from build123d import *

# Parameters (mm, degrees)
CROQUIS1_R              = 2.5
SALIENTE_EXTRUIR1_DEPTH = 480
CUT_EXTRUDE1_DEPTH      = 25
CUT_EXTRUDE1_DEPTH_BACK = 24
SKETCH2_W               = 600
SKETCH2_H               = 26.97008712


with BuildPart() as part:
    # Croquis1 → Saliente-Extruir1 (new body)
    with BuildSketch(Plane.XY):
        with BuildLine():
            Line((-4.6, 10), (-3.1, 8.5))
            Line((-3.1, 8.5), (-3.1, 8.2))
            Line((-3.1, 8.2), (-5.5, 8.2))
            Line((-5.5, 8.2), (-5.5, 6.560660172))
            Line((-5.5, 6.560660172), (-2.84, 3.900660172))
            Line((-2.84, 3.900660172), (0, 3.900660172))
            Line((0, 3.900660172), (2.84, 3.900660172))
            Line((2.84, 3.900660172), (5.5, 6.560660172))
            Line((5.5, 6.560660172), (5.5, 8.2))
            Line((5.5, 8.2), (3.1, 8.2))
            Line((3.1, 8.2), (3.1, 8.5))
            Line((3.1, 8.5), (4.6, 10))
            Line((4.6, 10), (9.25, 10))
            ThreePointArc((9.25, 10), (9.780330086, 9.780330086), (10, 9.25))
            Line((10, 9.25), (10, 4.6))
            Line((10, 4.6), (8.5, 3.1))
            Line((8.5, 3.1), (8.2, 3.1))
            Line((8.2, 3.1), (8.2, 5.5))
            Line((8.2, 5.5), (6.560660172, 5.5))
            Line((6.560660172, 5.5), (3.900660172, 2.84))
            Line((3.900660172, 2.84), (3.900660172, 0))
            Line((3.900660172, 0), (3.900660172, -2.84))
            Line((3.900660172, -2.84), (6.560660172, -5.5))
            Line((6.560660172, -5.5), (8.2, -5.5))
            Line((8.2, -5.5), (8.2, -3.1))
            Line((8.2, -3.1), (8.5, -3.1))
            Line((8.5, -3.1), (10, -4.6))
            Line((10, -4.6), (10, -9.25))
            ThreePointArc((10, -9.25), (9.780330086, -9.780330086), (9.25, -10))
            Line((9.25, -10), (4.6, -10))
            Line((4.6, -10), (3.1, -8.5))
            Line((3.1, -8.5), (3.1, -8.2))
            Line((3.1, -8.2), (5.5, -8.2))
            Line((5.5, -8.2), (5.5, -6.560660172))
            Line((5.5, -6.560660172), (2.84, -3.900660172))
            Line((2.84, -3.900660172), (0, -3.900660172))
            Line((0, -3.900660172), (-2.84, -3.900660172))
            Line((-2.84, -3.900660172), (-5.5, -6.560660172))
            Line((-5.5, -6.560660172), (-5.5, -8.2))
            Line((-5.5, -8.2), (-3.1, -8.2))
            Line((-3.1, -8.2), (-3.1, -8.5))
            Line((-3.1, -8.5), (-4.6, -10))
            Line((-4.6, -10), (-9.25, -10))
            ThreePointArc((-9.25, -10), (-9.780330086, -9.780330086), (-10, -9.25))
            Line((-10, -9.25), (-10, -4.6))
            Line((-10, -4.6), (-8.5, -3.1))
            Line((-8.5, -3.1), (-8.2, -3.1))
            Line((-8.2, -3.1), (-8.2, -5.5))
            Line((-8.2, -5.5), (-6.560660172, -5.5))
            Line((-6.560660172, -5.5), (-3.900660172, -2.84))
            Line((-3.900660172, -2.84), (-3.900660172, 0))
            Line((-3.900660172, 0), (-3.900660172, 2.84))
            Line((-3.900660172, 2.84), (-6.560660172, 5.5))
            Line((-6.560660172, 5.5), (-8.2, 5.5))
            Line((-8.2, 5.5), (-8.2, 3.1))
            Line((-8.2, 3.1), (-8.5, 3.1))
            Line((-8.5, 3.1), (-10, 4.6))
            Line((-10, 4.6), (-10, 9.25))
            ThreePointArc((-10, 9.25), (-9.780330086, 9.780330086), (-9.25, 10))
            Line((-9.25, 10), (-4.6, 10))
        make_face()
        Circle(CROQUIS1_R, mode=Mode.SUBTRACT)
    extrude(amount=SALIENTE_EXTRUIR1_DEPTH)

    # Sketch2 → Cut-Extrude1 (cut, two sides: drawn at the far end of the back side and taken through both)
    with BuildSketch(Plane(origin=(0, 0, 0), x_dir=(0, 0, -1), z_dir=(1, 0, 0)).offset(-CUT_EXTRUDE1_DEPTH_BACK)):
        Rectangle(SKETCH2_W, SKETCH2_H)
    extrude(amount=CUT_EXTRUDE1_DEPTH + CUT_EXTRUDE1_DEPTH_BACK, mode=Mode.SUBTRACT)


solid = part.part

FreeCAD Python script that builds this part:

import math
import FreeCAD as App
import Part
import Sketcher
from FreeCAD import Vector

doc = App.newDocument("Part")
body = doc.addObject("PartDesign::Body", "Body")

# Sketch on XY plane
sketch1 = doc.addObject("Sketcher::SketchObject", "Sketch")
body.addObject(sketch1)
sketch1.AttachmentSupport = (doc.XY_Plane, [""])
sketch1.MapMode = "FlatFace"
sketch1.addGeometry([
    Part.LineSegment(Vector(-3.1, 8.5, 0), Vector(-4.6, 10, 0)),  # 0
    Part.LineSegment(Vector(-4.6, 10, 0), Vector(-9.25, 10, 0)),  # 1
    Part.ArcOfCircle(Part.Circle(Vector(-9.25, 9.25, 0), Vector(0, 0, 1), 0.75), math.radians(90), math.radians(180)),  # 2
    Part.LineSegment(Vector(-10, 9.25, 0), Vector(-10, 4.6, 0)),  # 3
    Part.LineSegment(Vector(-10, 4.6, 0), Vector(-8.5, 3.1, 0)),  # 4
    Part.LineSegment(Vector(-8.5, 3.1, 0), Vector(-8.2, 3.1, 0)),  # 5
    Part.LineSegment(Vector(-8.2, 3.1, 0), Vector(-8.2, 5.5, 0)),  # 6
    Part.LineSegment(Vector(-8.2, 5.5, 0), Vector(-6.56, 5.5, 0)),  # 7
    Part.LineSegment(Vector(-6.56, 5.5, 0), Vector(-3.9, 2.84, 0)),  # 8
    Part.LineSegment(Vector(-3.9, 2.84, 0), Vector(-3.9, -2.84, 0)),  # 9
    Part.LineSegment(Vector(-3.9, -2.84, 0), Vector(-6.56, -5.5, 0)),  # 10
    Part.LineSegment(Vector(-6.56, -5.5, 0), Vector(-8.2, -5.5, 0)),  # 11
    Part.LineSegment(Vector(-8.2, -5.5, 0), Vector(-8.2, -3.1, 0)),  # 12
    Part.LineSegment(Vector(-8.2, -3.1, 0), Vector(-8.5, -3.1, 0)),  # 13
    Part.LineSegment(Vector(-8.5, -3.1, 0), Vector(-10, -4.6, 0)),  # 14
    Part.LineSegment(Vector(-10, -4.6, 0), Vector(-10, -9.25, 0)),  # 15
    Part.ArcOfCircle(Part.Circle(Vector(-9.25, -9.25, 0), Vector(0, 0, 1), 0.75), math.radians(180), math.radians(270)),  # 16
    Part.LineSegment(Vector(-9.25, -10, 0), Vector(-4.6, -10, 0)),  # 17
    Part.LineSegment(Vector(-4.6, -10, 0), Vector(-3.1, -8.5, 0)),  # 18
    Part.LineSegment(Vector(-3.1, -8.5, 0), Vector(-3.1, -8.2, 0)),  # 19
    Part.LineSegment(Vector(-3.1, -8.2, 0), Vector(-5.5, -8.2, 0)),  # 20
    Part.LineSegment(Vector(-5.5, -8.2, 0), Vector(-5.5, -6.56, 0)),  # 21
    Part.LineSegment(Vector(-5.5, -6.56, 0), Vector(-2.84, -3.9, 0)),  # 22
    Part.LineSegment(Vector(-2.84, -3.9, 0), Vector(2.84, -3.9, 0)),  # 23
    Part.LineSegment(Vector(2.84, -3.9, 0), Vector(5.5, -6.56, 0)),  # 24
    Part.LineSegment(Vector(5.5, -6.56, 0), Vector(5.5, -8.2, 0)),  # 25
    Part.LineSegment(Vector(5.5, -8.2, 0), Vector(3.1, -8.2, 0)),  # 26
    Part.LineSegment(Vector(3.1, -8.2, 0), Vector(3.1, -8.5, 0)),  # 27
    Part.LineSegment(Vector(3.1, -8.5, 0), Vector(4.6, -10, 0)),  # 28
    Part.LineSegment(Vector(4.6, -10, 0), Vector(9.25, -10, 0)),  # 29
    Part.ArcOfCircle(Part.Circle(Vector(9.25, -9.25, 0), Vector(0, 0, 1), 0.75), math.radians(-90), math.radians(0)),  # 30
    Part.LineSegment(Vector(10, -9.25, 0), Vector(10, -4.6, 0)),  # 31
    Part.LineSegment(Vector(10, -4.6, 0), Vector(8.5, -3.1, 0)),  # 32
    Part.LineSegment(Vector(8.5, -3.1, 0), Vector(8.2, -3.1, 0)),  # 33
    Part.LineSegment(Vector(8.2, -3.1, 0), Vector(8.2, -5.5, 0)),  # 34
    Part.LineSegment(Vector(8.2, -5.5, 0), Vector(6.56, -5.5, 0)),  # 35
    Part.LineSegment(Vector(6.56, -5.5, 0), Vector(3.9, -2.84, 0)),  # 36
    Part.LineSegment(Vector(3.9, -2.84, 0), Vector(3.9, 2.84, 0)),  # 37
    Part.LineSegment(Vector(3.9, 2.84, 0), Vector(6.56, 5.5, 0)),  # 38
    Part.LineSegment(Vector(6.56, 5.5, 0), Vector(8.2, 5.5, 0)),  # 39
    Part.LineSegment(Vector(8.2, 5.5, 0), Vector(8.2, 3.1, 0)),  # 40
    Part.LineSegment(Vector(8.2, 3.1, 0), Vector(8.5, 3.1, 0)),  # 41
    Part.LineSegment(Vector(8.5, 3.1, 0), Vector(10, 4.6, 0)),  # 42
    Part.LineSegment(Vector(10, 4.6, 0), Vector(10, 9.25, 0)),  # 43
    Part.ArcOfCircle(Part.Circle(Vector(9.25, 9.25, 0), Vector(0, 0, 1), 0.75), math.radians(0), math.radians(90)),  # 44
    Part.LineSegment(Vector(9.25, 10, 0), Vector(4.6, 10, 0)),  # 45
    Part.LineSegment(Vector(4.6, 10, 0), Vector(3.1, 8.5, 0)),  # 46
    Part.LineSegment(Vector(3.1, 8.5, 0), Vector(3.1, 8.2, 0)),  # 47
    Part.LineSegment(Vector(3.1, 8.2, 0), Vector(5.5, 8.2, 0)),  # 48
    Part.LineSegment(Vector(5.5, 8.2, 0), Vector(5.5, 6.56, 0)),  # 49
    Part.LineSegment(Vector(5.5, 6.56, 0), Vector(2.84, 3.9, 0)),  # 50
    Part.LineSegment(Vector(2.84, 3.9, 0), Vector(-2.84, 3.9, 0)),  # 51
    Part.LineSegment(Vector(-2.84, 3.9, 0), Vector(-5.5, 6.56, 0)),  # 52
    Part.LineSegment(Vector(-5.5, 6.56, 0), Vector(-5.5, 8.2, 0)),  # 53
    Part.LineSegment(Vector(-5.5, 8.2, 0), Vector(-3.1, 8.2, 0)),  # 54
    Part.LineSegment(Vector(-3.1, 8.2, 0), Vector(-3.1, 8.5, 0)),  # 55
    Part.Circle(Vector(0, 0, 0), Vector(0, 0, 1), 2.5),  # 56
], False)
sketch1.addConstraint([
    Sketcher.Constraint("Coincident", 0, 2, 1, 1),
    Sketcher.Constraint("Tangent", 1, 2, 2, 1),
    Sketcher.Constraint("Tangent", 2, 2, 3, 1),
    Sketcher.Constraint("Coincident", 3, 2, 4, 1),
    Sketcher.Constraint("Coincident", 4, 2, 5, 1),
    Sketcher.Constraint("Coincident", 5, 2, 6, 1),
    Sketcher.Constraint("Coincident", 6, 2, 7, 1),
    Sketcher.Constraint("Coincident", 7, 2, 8, 1),
    Sketcher.Constraint("Coincident", 8, 2, 9, 1),
    Sketcher.Constraint("Coincident", 9, 2, 10, 1),
    Sketcher.Constraint("Coincident", 10, 2, 11, 1),
    Sketcher.Constraint("Coincident", 11, 2, 12, 1),
    Sketcher.Constraint("Coincident", 12, 2, 13, 1),
    Sketcher.Constraint("Coincident", 13, 2, 14, 1),
    Sketcher.Constraint("Coincident", 14, 2, 15, 1),
    Sketcher.Constraint("Tangent", 15, 2, 16, 1),
    Sketcher.Constraint("Tangent", 16, 2, 17, 1),
    Sketcher.Constraint("Coincident", 17, 2, 18, 1),
    Sketcher.Constraint("Coincident", 18, 2, 19, 1),
    Sketcher.Constraint("Coincident", 19, 2, 20, 1),
    Sketcher.Constraint("Coincident", 20, 2, 21, 1),
    Sketcher.Constraint("Coincident", 21, 2, 22, 1),
    Sketcher.Constraint("Coincident", 22, 2, 23, 1),
    Sketcher.Constraint("Coincident", 23, 2, 24, 1),
    Sketcher.Constraint("Coincident", 24, 2, 25, 1),
    Sketcher.Constraint("Coincident", 25, 2, 26, 1),
    Sketcher.Constraint("Coincident", 26, 2, 27, 1),
    Sketcher.Constraint("Coincident", 27, 2, 28, 1),
    Sketcher.Constraint("Coincident", 28, 2, 29, 1),
    Sketcher.Constraint("Tangent", 29, 2, 30, 1),
    Sketcher.Constraint("Tangent", 30, 2, 31, 1),
    Sketcher.Constraint("Coincident", 31, 2, 32, 1),
    Sketcher.Constraint("Coincident", 32, 2, 33, 1),
    Sketcher.Constraint("Coincident", 33, 2, 34, 1),
    Sketcher.Constraint("Coincident", 34, 2, 35, 1),
    Sketcher.Constraint("Coincident", 35, 2, 36, 1),
    Sketcher.Constraint("Coincident", 36, 2, 37, 1),
    Sketcher.Constraint("Coincident", 37, 2, 38, 1),
    Sketcher.Constraint("Coincident", 38, 2, 39, 1),
    Sketcher.Constraint("Coincident", 39, 2, 40, 1),
    Sketcher.Constraint("Coincident", 40, 2, 41, 1),
    Sketcher.Constraint("Coincident", 41, 2, 42, 1),
    Sketcher.Constraint("Coincident", 42, 2, 43, 1),
    Sketcher.Constraint("Tangent", 43, 2, 44, 1),
    Sketcher.Constraint("Tangent", 44, 2, 45, 1),
    Sketcher.Constraint("Coincident", 45, 2, 46, 1),
    Sketcher.Constraint("Coincident", 46, 2, 47, 1),
    Sketcher.Constraint("Coincident", 47, 2, 48, 1),
    Sketcher.Constraint("Coincident", 48, 2, 49, 1),
    Sketcher.Constraint("Coincident", 49, 2, 50, 1),
    Sketcher.Constraint("Coincident", 50, 2, 51, 1),
    Sketcher.Constraint("Coincident", 51, 2, 52, 1),
    Sketcher.Constraint("Coincident", 52, 2, 53, 1),
    Sketcher.Constraint("Coincident", 53, 2, 54, 1),
    Sketcher.Constraint("Coincident", 54, 2, 55, 1),
    Sketcher.Constraint("Coincident", 55, 2, 0, 1),
    Sketcher.Constraint("Horizontal", 1),
    Sketcher.Constraint("Vertical", 3),
    Sketcher.Constraint("Horizontal", 5),
    Sketcher.Constraint("Vertical", 6),
    Sketcher.Constraint("Horizontal", 7),
    Sketcher.Constraint("Vertical", 9),
    Sketcher.Constraint("Horizontal", 11),
    Sketcher.Constraint("Vertical", 12),
    Sketcher.Constraint("Horizontal", 13),
    Sketcher.Constraint("Vertical", 15),
    Sketcher.Constraint("Horizontal", 17),
    Sketcher.Constraint("Vertical", 19),
    Sketcher.Constraint("Horizontal", 20),
    Sketcher.Constraint("Vertical", 21),
    Sketcher.Constraint("Horizontal", 23),
    Sketcher.Constraint("Vertical", 25),
    Sketcher.Constraint("Horizontal", 26),
    Sketcher.Constraint("Vertical", 27),
    Sketcher.Constraint("Horizontal", 29),
    Sketcher.Constraint("Vertical", 31),
    Sketcher.Constraint("Horizontal", 33),
    Sketcher.Constraint("Vertical", 34),
    Sketcher.Constraint("Horizontal", 35),
    Sketcher.Constraint("Vertical", 37),
    Sketcher.Constraint("Horizontal", 39),
    Sketcher.Constraint("Vertical", 40),
    Sketcher.Constraint("Horizontal", 41),
    Sketcher.Constraint("Vertical", 43),
    Sketcher.Constraint("Horizontal", 45),
    Sketcher.Constraint("Vertical", 47),
    Sketcher.Constraint("Horizontal", 48),
    Sketcher.Constraint("Vertical", 49),
    Sketcher.Constraint("Horizontal", 51),
    Sketcher.Constraint("Vertical", 53),
    Sketcher.Constraint("Horizontal", 54),
    Sketcher.Constraint("Vertical", 55),
    Sketcher.Constraint("Coincident", 56, 3, -1, 1),
    Sketcher.Constraint("Equal", 2, 16),
    Sketcher.Constraint("Equal", 16, 30),
    Sketcher.Constraint("Equal", 30, 44),
    Sketcher.Constraint("Symmetric", 2, 3, 30, 3, -1, 1),
    Sketcher.Constraint("Symmetric", 16, 3, 44, 3, -1, 1),
    Sketcher.Constraint("Symmetric", 4, 2, 32, 2, -1, 1),
    Sketcher.Constraint("Symmetric", 6, 2, 34, 2, -1, 1),
    Sketcher.Constraint("Symmetric", 8, 2, 36, 2, -1, 1),
    Sketcher.Constraint("Symmetric", 10, 2, 38, 2, -1, 1),
    Sketcher.Constraint("Symmetric", 12, 2, 40, 2, -1, 1),
    Sketcher.Constraint("Symmetric", 18, 2, 46, 2, -1, 1),
    Sketcher.Constraint("Symmetric", 20, 2, 48, 2, -1, 1),
    Sketcher.Constraint("Symmetric", 22, 2, 50, 2, -1, 1),
    Sketcher.Constraint("Symmetric", 24, 2, 52, 2, -1, 1),
    Sketcher.Constraint("Symmetric", 26, 2, 54, 2, -1, 1),
    Sketcher.Constraint("Symmetric", 16, 3, 30, 3, -2),
    Sketcher.Constraint("Symmetric", 21, 2, 24, 2, -2),
    Sketcher.Constraint("Symmetric", 19, 2, 26, 2, -2),
    Sketcher.Constraint("Symmetric", 13, 2, 32, 2, -2),
    Sketcher.Constraint("Symmetric", 11, 2, 34, 2, -2),
    Sketcher.Constraint("Parallel", 0, 4),
    Sketcher.Constraint("Parallel", 4, 8),
    Sketcher.Constraint("Perpendicular", 8, 10),
    Sketcher.Constraint("Parallel", 10, 14),
    Sketcher.Constraint("Parallel", 14, 18),
    Sketcher.Constraint("Parallel", 18, 22),
    Sketcher.Constraint("Perpendicular", 22, 24),
    Sketcher.Constraint("Parallel", 24, 28),
    Sketcher.Constraint("Parallel", 28, 32),
    Sketcher.Constraint("Parallel", 32, 36),
    Sketcher.Constraint("Perpendicular", 36, 38),
    Sketcher.Constraint("Parallel", 38, 42),
    Sketcher.Constraint("Parallel", 42, 46),
    Sketcher.Constraint("Parallel", 46, 50),
    Sketcher.Constraint("Perpendicular", 50, 52),
    Sketcher.Constraint("Horizontal", 18, 2, 27, 2),
    Sketcher.Constraint("Horizontal", 14, 2, 31, 2),
    Sketcher.Constraint("Horizontal", 9, 2, 36, 2),
    Sketcher.Constraint("Horizontal", 3, 2, 42, 2),
    Sketcher.Constraint("Horizontal", 46, 2, 55, 2),
    Sketcher.Constraint("Equal", 45, 3),
    Sketcher.Constraint("Equal", 54, 6),
    Sketcher.Constraint("Equal", 51, 9),
    Sketcher.Constraint("Equal", 41, 19),
    Sketcher.Constraint("Equal", 39, 21),
    Sketcher.Constraint("Equal", 0, 4),
    Sketcher.Constraint("Equal", 10, 22),
    Sketcher.Constraint("Diameter", 56, 5.0),
    Sketcher.Constraint("Radius", 2, 0.75),
    Sketcher.Constraint("DistanceX", 5, 1, 5, 2, 0.3),
    Sketcher.Constraint("DistanceX", 20, 2, 20, 1, 2.4),
    Sketcher.Constraint("DistanceY", -1, 1, 0, 2, 10.0),
    Sketcher.Constraint("DistanceX", 1, 2, 1, 1, 4.65),
    Sketcher.Constraint("DistanceX", 23, 1, 23, 2, 5.68),
    Sketcher.Constraint("DistanceX", 4, 2, -1, 1, 8.5),
    Sketcher.Constraint("DistanceX", 7, 1, 7, 2, 1.63934),
])
pad1 = doc.addObject("PartDesign::Pad", "Pad")
body.addObject(pad1)
pad1.Profile = sketch1
pad1.Length = 480

# Sketch on YZ plane
sketch2 = doc.addObject("Sketcher::SketchObject", "Sketch001")
body.addObject(sketch2)
sketch2.AttachmentSupport = (doc.YZ_Plane, [""])
sketch2.MapMode = "FlatFace"
sketch2.addGeometry([
    Part.LineSegment(Vector(13, 300, 0), Vector(-13, 300, 0)),
    Part.LineSegment(Vector(-13, 300, 0), Vector(-13, -300, 0)),
    Part.LineSegment(Vector(-13, -300, 0), Vector(13, -300, 0)),
    Part.LineSegment(Vector(13, -300, 0), Vector(13, 300, 0)),
], False)
sketch2.addConstraint([
    Sketcher.Constraint("Coincident", 0, 2, 1, 1),
    Sketcher.Constraint("Coincident", 1, 2, 2, 1),
    Sketcher.Constraint("Coincident", 2, 2, 3, 1),
    Sketcher.Constraint("Coincident", 3, 2, 0, 1),
    Sketcher.Constraint("Horizontal", 0),
    Sketcher.Constraint("Vertical", 1),
    Sketcher.Constraint("Horizontal", 2),
    Sketcher.Constraint("Vertical", 3),
    Sketcher.Constraint("Symmetric", 0, 2, 2, 2, -1, 1),
    Sketcher.Constraint("DistanceY", 1, 2, 1, 1, 600.0),
    Sketcher.Constraint("DistanceX", 0, 2, 0, 1, 26.970087),
])
pocket1 = doc.addObject("PartDesign::Pocket", "Pocket")
body.addObject(pocket1)
pocket1.Profile = sketch2
pocket1.Type = "ThroughAll"
pocket1.Midplane = True

doc.recompute()
